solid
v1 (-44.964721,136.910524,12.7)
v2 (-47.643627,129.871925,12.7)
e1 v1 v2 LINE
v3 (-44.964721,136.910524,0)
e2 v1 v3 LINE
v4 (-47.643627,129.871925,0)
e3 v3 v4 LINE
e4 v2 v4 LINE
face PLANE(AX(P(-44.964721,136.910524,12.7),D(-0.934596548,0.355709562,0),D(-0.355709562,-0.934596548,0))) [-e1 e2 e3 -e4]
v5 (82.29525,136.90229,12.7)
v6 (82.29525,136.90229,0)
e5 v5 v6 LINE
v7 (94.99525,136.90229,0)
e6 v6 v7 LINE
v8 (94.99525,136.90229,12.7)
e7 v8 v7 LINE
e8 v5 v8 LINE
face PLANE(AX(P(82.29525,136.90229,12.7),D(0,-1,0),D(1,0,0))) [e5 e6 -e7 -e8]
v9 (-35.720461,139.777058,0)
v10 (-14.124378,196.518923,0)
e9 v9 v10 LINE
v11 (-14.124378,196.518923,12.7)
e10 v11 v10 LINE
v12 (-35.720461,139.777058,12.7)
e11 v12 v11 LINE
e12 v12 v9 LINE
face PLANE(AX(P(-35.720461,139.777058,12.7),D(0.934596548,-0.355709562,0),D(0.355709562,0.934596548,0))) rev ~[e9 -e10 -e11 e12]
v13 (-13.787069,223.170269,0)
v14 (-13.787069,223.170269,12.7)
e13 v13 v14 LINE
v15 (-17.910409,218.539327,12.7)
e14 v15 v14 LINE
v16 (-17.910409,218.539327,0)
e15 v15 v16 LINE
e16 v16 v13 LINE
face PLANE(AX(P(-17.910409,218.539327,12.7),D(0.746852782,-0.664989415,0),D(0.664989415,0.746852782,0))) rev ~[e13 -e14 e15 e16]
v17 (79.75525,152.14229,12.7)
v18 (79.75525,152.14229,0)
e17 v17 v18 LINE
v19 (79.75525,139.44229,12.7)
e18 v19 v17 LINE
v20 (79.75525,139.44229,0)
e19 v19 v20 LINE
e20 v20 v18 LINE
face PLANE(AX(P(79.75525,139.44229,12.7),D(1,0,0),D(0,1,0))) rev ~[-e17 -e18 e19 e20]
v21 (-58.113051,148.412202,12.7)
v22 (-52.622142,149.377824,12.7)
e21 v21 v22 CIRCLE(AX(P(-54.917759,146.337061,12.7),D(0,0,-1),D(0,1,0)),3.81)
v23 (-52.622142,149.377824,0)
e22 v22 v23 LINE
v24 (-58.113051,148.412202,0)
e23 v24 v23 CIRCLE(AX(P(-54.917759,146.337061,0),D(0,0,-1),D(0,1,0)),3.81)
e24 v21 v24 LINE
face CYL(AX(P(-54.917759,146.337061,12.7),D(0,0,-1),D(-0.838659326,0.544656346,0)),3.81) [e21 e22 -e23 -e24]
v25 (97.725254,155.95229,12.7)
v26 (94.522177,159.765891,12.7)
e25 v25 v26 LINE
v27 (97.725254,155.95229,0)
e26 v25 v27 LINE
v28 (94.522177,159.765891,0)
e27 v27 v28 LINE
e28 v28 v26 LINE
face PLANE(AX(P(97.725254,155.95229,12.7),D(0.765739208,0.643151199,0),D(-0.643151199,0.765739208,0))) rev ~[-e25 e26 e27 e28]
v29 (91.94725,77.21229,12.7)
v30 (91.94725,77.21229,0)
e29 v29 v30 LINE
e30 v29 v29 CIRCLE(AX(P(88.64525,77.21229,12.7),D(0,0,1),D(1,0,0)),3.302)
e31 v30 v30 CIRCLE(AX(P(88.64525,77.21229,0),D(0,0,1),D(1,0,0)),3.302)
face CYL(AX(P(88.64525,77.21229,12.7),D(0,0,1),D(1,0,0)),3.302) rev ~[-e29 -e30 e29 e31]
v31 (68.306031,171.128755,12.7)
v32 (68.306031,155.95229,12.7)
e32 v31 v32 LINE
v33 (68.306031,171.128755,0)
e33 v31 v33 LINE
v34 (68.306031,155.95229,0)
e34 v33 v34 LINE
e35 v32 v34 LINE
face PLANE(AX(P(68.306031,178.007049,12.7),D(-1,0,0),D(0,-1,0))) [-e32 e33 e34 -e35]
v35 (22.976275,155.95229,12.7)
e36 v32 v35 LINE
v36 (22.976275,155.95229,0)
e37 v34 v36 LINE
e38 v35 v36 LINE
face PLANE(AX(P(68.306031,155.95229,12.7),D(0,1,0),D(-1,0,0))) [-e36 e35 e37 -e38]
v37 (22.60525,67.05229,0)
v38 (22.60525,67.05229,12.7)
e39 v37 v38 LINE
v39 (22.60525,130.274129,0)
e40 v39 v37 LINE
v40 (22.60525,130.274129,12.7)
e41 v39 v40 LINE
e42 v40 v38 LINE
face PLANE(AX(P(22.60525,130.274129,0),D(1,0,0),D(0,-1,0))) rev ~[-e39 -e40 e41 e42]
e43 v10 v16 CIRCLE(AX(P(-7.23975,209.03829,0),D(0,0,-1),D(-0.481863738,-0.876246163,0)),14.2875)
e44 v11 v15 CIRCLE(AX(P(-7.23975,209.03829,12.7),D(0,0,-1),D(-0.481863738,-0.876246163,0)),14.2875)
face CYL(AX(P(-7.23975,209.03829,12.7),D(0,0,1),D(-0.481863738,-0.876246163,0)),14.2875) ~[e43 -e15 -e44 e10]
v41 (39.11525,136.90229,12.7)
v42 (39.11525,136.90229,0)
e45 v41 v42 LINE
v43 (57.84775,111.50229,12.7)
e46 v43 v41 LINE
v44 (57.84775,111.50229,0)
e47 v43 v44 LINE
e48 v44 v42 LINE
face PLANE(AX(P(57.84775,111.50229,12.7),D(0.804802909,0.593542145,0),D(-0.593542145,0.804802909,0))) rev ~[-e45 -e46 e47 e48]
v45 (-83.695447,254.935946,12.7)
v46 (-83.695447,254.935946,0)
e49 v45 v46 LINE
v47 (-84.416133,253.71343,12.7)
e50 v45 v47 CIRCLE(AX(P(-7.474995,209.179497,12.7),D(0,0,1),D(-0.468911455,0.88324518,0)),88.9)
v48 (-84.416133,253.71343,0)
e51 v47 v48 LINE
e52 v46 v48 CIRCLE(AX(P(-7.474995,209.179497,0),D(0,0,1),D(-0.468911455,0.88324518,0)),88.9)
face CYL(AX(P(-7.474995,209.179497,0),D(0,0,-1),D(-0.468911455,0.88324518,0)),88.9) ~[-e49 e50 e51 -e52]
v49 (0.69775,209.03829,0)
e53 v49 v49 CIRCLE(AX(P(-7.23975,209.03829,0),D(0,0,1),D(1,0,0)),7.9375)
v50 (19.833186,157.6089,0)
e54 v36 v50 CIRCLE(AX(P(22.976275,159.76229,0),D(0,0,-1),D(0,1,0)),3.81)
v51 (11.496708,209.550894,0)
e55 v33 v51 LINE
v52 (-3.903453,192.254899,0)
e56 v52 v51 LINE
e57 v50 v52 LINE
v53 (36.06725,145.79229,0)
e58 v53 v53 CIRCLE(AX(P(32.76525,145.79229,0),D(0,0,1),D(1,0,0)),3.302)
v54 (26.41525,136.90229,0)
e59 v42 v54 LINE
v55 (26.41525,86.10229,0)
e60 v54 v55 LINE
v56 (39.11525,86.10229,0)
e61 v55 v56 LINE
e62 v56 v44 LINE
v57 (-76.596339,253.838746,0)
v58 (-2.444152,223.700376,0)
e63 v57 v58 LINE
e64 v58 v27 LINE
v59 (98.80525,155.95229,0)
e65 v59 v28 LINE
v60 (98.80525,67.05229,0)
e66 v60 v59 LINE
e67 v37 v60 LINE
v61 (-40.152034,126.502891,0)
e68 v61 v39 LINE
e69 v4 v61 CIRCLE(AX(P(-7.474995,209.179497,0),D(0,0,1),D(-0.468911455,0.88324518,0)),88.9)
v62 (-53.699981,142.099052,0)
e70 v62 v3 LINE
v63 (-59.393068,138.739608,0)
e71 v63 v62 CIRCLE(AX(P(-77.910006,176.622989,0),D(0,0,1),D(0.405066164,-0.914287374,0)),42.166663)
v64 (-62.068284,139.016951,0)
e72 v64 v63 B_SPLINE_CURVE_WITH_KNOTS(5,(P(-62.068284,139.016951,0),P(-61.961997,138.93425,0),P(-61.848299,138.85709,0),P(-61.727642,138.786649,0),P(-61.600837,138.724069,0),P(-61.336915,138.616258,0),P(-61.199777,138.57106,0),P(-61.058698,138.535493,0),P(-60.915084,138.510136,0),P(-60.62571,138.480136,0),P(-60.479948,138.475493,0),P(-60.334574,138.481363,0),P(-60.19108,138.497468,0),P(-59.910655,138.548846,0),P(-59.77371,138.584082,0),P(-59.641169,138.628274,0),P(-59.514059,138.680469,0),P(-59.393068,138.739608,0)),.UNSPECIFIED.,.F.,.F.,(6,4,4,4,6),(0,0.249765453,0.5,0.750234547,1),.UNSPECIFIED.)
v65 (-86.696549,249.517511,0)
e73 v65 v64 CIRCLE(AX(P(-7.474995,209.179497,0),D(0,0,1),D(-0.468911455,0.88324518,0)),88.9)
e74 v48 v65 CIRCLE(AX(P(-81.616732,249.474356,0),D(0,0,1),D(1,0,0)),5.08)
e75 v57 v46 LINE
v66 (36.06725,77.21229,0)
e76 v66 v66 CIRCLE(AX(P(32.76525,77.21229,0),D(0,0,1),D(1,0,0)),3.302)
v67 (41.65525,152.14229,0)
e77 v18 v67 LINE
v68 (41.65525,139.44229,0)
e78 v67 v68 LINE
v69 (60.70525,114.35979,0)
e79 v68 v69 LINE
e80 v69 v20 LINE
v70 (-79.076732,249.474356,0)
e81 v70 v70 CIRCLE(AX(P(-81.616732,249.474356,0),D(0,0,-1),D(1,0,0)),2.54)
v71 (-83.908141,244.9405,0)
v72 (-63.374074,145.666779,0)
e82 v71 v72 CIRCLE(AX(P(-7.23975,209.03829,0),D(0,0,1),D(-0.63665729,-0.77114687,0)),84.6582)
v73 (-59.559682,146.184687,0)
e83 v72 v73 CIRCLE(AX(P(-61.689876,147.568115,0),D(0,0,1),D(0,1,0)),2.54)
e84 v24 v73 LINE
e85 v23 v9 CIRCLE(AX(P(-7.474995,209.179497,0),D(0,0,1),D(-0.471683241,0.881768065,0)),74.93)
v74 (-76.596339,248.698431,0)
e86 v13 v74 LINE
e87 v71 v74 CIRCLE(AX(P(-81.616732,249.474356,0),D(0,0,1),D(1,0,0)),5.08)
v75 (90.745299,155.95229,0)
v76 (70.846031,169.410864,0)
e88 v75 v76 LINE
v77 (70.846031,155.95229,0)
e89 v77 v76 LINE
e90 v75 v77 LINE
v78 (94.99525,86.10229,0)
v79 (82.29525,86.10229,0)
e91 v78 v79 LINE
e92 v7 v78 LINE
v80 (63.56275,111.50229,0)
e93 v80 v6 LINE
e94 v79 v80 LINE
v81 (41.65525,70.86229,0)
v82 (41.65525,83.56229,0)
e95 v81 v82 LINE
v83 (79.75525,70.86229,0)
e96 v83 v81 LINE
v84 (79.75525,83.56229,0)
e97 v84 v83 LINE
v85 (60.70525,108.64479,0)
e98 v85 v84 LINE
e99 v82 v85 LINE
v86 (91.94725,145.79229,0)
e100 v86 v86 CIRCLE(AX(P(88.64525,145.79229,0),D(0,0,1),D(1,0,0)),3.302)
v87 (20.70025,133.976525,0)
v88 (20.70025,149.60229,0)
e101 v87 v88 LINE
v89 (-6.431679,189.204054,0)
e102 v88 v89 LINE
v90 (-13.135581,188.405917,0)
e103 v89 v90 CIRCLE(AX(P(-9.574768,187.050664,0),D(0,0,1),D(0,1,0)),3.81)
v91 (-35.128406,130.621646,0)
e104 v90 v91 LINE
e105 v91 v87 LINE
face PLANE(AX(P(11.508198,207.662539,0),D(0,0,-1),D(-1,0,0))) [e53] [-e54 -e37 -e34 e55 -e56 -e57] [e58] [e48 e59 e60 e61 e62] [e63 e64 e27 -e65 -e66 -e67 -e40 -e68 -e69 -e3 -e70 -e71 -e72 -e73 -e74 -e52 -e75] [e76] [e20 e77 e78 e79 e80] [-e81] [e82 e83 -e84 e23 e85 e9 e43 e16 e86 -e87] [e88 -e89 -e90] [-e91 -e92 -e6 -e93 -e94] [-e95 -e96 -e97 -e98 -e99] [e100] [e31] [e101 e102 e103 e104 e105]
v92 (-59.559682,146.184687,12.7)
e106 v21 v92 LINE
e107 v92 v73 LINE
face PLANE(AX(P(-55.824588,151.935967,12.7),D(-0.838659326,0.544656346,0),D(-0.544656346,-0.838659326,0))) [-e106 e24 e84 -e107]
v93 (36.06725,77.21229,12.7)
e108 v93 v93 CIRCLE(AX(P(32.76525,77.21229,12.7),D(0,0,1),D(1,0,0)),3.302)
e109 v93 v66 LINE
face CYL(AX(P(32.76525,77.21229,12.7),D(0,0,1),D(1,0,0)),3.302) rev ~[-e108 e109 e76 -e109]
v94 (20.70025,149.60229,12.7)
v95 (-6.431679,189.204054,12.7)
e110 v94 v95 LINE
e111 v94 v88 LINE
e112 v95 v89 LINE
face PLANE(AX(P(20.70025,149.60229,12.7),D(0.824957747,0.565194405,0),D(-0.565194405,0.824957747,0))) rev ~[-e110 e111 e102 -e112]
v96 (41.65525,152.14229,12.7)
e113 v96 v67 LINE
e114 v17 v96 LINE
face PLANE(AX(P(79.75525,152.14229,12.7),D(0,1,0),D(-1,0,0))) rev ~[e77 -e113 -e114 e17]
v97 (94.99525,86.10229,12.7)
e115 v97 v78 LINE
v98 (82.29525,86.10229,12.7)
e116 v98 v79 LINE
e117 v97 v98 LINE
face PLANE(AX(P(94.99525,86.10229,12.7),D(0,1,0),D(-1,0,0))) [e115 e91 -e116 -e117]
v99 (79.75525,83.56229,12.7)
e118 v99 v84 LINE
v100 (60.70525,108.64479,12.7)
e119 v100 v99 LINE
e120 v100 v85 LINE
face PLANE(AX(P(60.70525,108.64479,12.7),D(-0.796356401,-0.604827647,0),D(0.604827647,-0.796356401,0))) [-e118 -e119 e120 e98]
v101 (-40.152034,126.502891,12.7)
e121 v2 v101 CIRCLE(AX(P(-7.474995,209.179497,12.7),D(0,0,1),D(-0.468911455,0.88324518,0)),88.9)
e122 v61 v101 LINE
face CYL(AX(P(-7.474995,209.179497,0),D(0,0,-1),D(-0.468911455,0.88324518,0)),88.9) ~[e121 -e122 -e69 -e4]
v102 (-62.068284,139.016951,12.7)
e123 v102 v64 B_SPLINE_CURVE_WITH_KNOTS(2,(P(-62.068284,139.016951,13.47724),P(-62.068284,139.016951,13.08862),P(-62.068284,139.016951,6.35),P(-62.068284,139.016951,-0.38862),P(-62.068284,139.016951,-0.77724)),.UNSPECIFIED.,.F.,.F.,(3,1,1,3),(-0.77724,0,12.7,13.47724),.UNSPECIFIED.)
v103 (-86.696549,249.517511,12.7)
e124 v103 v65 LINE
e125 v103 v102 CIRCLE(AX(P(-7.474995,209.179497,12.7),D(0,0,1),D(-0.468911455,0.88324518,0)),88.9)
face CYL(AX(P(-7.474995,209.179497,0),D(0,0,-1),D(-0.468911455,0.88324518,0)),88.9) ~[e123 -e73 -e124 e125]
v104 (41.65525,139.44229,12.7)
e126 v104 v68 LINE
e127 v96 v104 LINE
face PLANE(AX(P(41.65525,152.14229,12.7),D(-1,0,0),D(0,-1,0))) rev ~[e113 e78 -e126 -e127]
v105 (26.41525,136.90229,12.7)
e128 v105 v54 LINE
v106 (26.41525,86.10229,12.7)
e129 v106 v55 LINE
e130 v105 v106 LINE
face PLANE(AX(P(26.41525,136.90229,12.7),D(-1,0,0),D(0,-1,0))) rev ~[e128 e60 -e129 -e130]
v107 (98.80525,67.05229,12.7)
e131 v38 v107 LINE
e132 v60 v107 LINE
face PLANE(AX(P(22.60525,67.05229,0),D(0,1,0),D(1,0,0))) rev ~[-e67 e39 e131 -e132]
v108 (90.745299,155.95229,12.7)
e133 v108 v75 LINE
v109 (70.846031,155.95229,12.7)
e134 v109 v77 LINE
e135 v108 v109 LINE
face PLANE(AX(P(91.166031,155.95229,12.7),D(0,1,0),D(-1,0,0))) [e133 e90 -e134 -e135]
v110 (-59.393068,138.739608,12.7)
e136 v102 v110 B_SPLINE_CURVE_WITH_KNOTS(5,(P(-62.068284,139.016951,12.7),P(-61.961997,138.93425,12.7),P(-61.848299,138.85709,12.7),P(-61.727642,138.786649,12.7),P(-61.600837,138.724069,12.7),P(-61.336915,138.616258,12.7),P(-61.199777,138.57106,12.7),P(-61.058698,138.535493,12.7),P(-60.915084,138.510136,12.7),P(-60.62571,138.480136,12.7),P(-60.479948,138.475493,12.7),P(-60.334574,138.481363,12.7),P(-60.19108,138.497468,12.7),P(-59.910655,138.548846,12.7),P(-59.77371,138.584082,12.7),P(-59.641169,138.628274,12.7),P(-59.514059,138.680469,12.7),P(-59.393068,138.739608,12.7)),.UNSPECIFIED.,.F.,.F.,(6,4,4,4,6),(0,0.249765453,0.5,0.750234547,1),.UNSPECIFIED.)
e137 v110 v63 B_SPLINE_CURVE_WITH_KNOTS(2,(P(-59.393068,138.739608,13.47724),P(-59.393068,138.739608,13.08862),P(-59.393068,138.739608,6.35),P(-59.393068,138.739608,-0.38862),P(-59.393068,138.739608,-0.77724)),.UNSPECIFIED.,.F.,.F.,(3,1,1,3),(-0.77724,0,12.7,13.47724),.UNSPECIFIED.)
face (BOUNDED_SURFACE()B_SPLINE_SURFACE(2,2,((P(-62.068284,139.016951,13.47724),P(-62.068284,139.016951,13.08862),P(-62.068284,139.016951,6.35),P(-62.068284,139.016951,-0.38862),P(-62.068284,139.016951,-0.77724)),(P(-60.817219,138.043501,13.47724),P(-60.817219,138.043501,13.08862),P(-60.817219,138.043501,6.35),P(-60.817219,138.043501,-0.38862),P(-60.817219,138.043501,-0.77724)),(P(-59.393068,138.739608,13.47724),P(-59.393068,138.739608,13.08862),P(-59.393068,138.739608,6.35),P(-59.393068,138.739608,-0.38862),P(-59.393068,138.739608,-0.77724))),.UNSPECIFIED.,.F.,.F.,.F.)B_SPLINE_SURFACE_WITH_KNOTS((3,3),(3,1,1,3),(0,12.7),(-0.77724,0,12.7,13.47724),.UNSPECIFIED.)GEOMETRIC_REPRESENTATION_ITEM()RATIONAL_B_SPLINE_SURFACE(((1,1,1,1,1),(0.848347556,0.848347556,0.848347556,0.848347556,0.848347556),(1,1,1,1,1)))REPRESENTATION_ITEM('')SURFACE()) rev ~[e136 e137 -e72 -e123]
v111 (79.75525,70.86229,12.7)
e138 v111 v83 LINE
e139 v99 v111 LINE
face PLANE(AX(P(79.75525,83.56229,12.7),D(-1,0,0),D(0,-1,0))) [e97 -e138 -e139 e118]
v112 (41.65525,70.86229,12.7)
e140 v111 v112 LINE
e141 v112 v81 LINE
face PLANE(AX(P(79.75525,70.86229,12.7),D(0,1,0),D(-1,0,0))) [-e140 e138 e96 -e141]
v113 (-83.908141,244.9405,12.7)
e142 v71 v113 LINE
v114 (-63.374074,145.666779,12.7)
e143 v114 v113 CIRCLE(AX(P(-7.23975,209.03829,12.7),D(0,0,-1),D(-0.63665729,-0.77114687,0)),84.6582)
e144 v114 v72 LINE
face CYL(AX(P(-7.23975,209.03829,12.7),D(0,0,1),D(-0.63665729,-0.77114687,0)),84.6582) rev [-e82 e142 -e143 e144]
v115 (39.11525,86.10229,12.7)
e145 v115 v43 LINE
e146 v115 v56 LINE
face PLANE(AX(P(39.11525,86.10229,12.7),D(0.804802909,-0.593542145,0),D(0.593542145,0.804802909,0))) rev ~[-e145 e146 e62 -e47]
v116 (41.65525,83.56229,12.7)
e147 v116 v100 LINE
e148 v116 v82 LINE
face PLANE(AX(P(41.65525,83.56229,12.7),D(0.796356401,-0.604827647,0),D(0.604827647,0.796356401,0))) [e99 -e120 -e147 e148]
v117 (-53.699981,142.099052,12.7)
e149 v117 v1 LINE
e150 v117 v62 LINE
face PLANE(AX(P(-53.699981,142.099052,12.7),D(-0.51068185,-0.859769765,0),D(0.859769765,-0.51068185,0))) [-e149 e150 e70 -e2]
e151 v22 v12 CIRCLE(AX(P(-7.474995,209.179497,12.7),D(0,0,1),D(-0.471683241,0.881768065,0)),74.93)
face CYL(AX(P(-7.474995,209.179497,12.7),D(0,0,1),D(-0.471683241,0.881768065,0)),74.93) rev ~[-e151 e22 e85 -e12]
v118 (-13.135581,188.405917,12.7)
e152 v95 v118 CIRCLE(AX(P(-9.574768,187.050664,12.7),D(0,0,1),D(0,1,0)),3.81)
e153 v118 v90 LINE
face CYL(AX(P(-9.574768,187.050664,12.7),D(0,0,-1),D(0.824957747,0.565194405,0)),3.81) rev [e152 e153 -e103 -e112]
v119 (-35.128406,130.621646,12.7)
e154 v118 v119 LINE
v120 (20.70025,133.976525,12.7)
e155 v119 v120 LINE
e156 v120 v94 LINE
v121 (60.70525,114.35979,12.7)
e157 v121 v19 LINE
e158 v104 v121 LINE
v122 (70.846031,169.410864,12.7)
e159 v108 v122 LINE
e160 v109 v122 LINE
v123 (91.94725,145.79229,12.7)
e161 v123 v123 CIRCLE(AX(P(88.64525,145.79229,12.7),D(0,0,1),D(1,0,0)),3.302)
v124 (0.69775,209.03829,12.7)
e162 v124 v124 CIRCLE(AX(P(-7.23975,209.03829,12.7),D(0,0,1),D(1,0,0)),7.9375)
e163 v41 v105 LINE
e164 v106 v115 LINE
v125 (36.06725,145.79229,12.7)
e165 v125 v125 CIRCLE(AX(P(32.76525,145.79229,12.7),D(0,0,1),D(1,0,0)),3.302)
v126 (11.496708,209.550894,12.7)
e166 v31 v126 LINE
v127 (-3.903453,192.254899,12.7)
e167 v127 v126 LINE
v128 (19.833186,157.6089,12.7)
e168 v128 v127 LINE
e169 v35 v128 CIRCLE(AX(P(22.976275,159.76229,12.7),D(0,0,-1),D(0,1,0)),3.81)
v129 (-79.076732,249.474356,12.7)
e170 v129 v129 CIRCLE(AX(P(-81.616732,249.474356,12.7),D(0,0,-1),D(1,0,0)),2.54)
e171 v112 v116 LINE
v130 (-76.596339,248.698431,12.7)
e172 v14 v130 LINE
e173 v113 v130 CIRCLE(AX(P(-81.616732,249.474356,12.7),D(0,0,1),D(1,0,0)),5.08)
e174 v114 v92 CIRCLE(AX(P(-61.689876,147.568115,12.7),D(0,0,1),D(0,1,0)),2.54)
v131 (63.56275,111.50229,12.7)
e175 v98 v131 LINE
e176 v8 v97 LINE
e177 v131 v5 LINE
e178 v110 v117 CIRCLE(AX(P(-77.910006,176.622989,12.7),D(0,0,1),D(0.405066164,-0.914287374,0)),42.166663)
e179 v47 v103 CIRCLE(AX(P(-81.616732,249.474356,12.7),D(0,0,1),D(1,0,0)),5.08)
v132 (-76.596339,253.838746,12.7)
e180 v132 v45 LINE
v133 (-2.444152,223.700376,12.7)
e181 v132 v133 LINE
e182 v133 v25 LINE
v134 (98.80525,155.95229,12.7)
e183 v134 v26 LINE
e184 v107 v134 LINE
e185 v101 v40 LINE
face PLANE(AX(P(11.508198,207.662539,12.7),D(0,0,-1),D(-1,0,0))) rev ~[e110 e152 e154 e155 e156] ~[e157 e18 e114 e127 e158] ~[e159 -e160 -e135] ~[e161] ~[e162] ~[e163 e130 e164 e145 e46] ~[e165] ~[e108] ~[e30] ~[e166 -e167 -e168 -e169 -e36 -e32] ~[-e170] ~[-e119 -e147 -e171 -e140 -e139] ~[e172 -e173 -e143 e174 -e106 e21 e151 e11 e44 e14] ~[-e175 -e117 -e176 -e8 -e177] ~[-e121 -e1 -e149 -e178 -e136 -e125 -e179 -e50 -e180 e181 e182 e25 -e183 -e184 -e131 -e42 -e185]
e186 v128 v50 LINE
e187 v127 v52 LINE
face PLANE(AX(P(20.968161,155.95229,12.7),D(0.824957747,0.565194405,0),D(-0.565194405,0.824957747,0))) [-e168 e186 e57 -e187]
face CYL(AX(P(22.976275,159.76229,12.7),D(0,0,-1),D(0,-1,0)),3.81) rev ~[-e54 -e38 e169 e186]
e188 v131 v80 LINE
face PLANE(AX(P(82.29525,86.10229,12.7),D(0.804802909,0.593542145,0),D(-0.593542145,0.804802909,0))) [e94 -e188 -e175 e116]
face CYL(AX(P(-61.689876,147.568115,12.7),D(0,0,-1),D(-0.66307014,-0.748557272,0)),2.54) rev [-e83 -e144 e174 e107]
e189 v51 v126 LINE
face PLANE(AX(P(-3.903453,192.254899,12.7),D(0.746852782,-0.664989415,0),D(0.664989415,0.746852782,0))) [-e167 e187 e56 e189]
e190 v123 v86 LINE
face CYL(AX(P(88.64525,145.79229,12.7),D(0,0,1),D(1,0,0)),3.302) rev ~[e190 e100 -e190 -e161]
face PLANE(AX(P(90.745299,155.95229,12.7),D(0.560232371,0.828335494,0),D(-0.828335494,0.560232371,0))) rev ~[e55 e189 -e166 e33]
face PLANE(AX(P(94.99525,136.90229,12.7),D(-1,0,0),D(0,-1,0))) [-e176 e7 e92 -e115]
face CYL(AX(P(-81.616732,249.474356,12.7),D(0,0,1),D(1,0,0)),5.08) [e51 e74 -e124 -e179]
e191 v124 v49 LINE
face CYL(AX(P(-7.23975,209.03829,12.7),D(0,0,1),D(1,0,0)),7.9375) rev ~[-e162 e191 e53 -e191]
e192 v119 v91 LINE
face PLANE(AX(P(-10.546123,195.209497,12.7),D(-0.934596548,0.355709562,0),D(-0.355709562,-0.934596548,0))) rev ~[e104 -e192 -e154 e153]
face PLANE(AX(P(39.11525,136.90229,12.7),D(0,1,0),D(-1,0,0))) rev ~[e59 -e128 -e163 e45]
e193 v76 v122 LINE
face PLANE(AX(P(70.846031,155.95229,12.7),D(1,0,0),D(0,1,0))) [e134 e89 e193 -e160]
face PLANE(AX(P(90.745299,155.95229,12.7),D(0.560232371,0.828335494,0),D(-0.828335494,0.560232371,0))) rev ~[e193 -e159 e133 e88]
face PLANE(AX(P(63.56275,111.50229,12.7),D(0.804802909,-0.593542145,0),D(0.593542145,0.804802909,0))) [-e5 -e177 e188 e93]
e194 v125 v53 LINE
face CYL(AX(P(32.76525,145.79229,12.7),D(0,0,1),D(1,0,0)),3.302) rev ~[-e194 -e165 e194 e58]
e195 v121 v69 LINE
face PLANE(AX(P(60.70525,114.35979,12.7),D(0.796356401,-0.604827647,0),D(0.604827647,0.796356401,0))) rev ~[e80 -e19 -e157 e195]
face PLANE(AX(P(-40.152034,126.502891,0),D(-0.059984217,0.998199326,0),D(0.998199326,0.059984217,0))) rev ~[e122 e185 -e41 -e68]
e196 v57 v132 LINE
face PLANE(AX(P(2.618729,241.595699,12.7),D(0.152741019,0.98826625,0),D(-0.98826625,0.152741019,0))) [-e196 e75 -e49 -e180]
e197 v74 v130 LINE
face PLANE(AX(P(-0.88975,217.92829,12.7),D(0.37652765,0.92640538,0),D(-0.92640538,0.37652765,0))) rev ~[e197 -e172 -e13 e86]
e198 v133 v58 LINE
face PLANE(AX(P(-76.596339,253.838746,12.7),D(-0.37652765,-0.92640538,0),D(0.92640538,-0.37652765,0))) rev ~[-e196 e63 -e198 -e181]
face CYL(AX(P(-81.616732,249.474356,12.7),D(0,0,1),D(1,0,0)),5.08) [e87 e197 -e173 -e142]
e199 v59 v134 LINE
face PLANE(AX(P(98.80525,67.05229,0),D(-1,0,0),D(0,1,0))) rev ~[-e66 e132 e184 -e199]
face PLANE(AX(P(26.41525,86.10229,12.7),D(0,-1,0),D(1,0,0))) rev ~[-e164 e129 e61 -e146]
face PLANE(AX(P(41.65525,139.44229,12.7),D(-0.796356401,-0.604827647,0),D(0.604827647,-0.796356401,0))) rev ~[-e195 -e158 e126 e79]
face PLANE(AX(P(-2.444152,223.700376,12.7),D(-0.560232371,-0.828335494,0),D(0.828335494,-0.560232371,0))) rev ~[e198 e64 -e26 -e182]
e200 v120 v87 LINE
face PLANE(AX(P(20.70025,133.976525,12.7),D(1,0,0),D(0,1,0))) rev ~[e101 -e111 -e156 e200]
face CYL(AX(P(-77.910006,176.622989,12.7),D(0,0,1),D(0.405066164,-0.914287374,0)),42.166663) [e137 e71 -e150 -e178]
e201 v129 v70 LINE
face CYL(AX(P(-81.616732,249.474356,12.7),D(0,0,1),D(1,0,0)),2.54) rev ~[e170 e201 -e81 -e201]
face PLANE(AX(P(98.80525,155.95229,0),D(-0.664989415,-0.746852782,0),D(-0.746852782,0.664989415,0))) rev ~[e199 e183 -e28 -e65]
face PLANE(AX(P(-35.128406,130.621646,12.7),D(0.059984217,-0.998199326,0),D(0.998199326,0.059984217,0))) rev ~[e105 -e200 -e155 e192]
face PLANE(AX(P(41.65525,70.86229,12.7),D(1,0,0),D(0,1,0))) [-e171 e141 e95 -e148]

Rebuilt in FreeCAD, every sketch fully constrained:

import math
import FreeCAD as App
import Part
import Sketcher
Q = App.Units.Quantity


def edges_at(feature, points):
    """Names of the edges that pass closest to the given points."""
    edges = feature.Shape.Edges
    near = lambda p: min(range(len(edges)), key=lambda i: edges[i].distToShape(Part.Vertex(*p))[0])
    return sorted({f"Edge{near(p) + 1}" for p in points})

doc = App.newDocument("Part")
body = doc.addObject("PartDesign::Body", "Body")

# Sketch on XY plane
sketch1 = body.newObject("Sketcher::SketchObject", "Sketch")
sketch1.AttachmentSupport = (doc.getObject("XY_Plane"), [""])
sketch1.MapMode = "FlatFace"
sketch1.addGeometry([
    Part.LineSegment(App.Vector(23, 67, 0), App.Vector(99, 67, 0)),  # 0
    Part.LineSegment(App.Vector(99, 67, 0), App.Vector(99, 156, 0)),  # 1
    Part.LineSegment(App.Vector(99, 156, 0), App.Vector(-49, 288, 0)),  # 2
    Part.ArcOfCircle(Part.Circle(App.Vector(-7, 209, 0), App.Vector(0, 0, 1), 89), math.radians(118), math.radians(248)),  # 3
    Part.LineSegment(App.Vector(-40, 127, 0), App.Vector(23, 130, 0)),  # 4
    Part.LineSegment(App.Vector(23, 130, 0), App.Vector(23, 67, 0)),  # 5
], False)
sketch1.addConstraint([
    Sketcher.Constraint("Coincident", 0, 2, 1, 1),
    Sketcher.Constraint("Coincident", 1, 2, 2, 1),
    Sketcher.Constraint("Coincident", 2, 2, 3, 1),
    Sketcher.Constraint("Coincident", 3, 2, 4, 1),
    Sketcher.Constraint("Coincident", 4, 2, 5, 1),
    Sketcher.Constraint("Coincident", 5, 2, 0, 1),
    Sketcher.Constraint("Horizontal", 0),
    Sketcher.Constraint("Vertical", 1),
    Sketcher.Constraint("Vertical", 5),
    Sketcher.Constraint("Radius", 3, Q("3.5 in")),
    Sketcher.Constraint("DistanceX", 0, 1, 0, 2, Q("3 in")),
    Sketcher.Constraint("DistanceY", 1, 1, 1, 2, Q("3.5 in")),
    Sketcher.Constraint("Distance", 2, Q("7.8 in")),
    Sketcher.Constraint("DistanceY", 5, 2, 5, 1, Q("63.221838 mm")),
    Sketcher.Constraint("DistanceY", 3, 2, 1, 2, Q("29.449399 mm")),
    Sketcher.Constraint("DistanceX", -1, 1, 0, 2, Q("98.80525 mm")),
    Sketcher.Constraint("DistanceY", -1, 1, 0, 2, Q("67.05229 mm")),
    Sketcher.Constraint("DistanceX", 2, 2, 3, 3, Q("41.686228 mm")),
    Sketcher.Constraint("DistanceX", 3, 2, 3, 3, Q("32.677039 mm")),
])
pad1 = body.newObject("PartDesign::Pad", "Pad")
pad1.Profile = sketch1
pad1.Length = Q("0.5 in")

# Sketch on XY plane
sketch2 = body.newObject("Sketcher::SketchObject", "Sketch001")
sketch2.AttachmentSupport = (doc.getObject("XY_Plane"), [""])
sketch2.MapMode = "FlatFace"
sketch2.AttachmentOffset = App.Placement(App.Vector(0, 0, 0.5 * 25.4), App.Rotation())
sketch2.addGeometry(Part.Circle(App.Vector(-7, 209, 0), App.Vector(0, 0, 1), 8), False)
sketch2.addConstraint([
    Sketcher.Constraint("Diameter", 0, Q("0.625 in")),
    Sketcher.Constraint("DistanceX", 0, 3, -1, 1, Q("7.23975 mm")),
    Sketcher.Constraint("DistanceY", -1, 1, 0, 3, Q("209.03829 mm")),
])
pocket1 = body.newObject("PartDesign::Pocket", "Pocket")
pocket1.Profile = sketch2
pocket1.Length = Q("1 in")

# Sketch on XY plane
sketch3 = body.newObject("Sketcher::SketchObject", "Sketch002")
sketch3.AttachmentSupport = (doc.getObject("XY_Plane"), [""])
sketch3.MapMode = "FlatFace"
sketch3.AttachmentOffset = App.Placement(App.Vector(0, 0, 0.5 * 25.4), App.Rotation())
sketch3.addGeometry([
    Part.LineSegment(App.Vector(42, 84, 0), App.Vector(42, 71, 0)),  # 0
    Part.LineSegment(App.Vector(42, 71, 0), App.Vector(80, 71, 0)),  # 1
    Part.LineSegment(App.Vector(80, 71, 0), App.Vector(80, 84, 0)),  # 2
    Part.LineSegment(App.Vector(80, 84, 0), App.Vector(61, 109, 0)),  # 3
    Part.LineSegment(App.Vector(61, 109, 0), App.Vector(42, 84, 0)),  # 4
    Part.LineSegment(App.Vector(26, 86, 0), App.Vector(39, 86, 0)),  # 5
    Part.LineSegment(App.Vector(39, 86, 0), App.Vector(58, 112, 0)),  # 6
    Part.LineSegment(App.Vector(58, 112, 0), App.Vector(39, 137, 0)),  # 7
    Part.LineSegment(App.Vector(39, 137, 0), App.Vector(26, 137, 0)),  # 8
    Part.LineSegment(App.Vector(26, 137, 0), App.Vector(26, 86, 0)),  # 9
    Part.LineSegment(App.Vector(82, 86, 0), App.Vector(95, 86, 0)),  # 10
    Part.LineSegment(App.Vector(95, 86, 0), App.Vector(95, 137, 0)),  # 11
    Part.LineSegment(App.Vector(95, 137, 0), App.Vector(82, 137, 0)),  # 12
    Part.LineSegment(App.Vector(82, 137, 0), App.Vector(64, 112, 0)),  # 13
    Part.LineSegment(App.Vector(64, 112, 0), App.Vector(82, 86, 0)),  # 14
    Part.LineSegment(App.Vector(42, 152, 0), App.Vector(42, 139, 0)),  # 15
    Part.LineSegment(App.Vector(42, 139, 0), App.Vector(61, 114, 0)),  # 16
    Part.LineSegment(App.Vector(61, 114, 0), App.Vector(80, 139, 0)),  # 17
    Part.LineSegment(App.Vector(80, 139, 0), App.Vector(80, 152, 0)),  # 18
    Part.LineSegment(App.Vector(80, 152, 0), App.Vector(42, 152, 0)),  # 19
], False)
sketch3.addConstraint([
    Sketcher.Constraint("Coincident", 0, 2, 1, 1),
    Sketcher.Constraint("Coincident", 1, 2, 2, 1),
    Sketcher.Constraint("Coincident", 2, 2, 3, 1),
    Sketcher.Constraint("Coincident", 3, 2, 4, 1),
    Sketcher.Constraint("Coincident", 4, 2, 0, 1),
    Sketcher.Constraint("Coincident", 5, 2, 6, 1),
    Sketcher.Constraint("Coincident", 6, 2, 7, 1),
    Sketcher.Constraint("Coincident", 7, 2, 8, 1),
    Sketcher.Constraint("Coincident", 8, 2, 9, 1),
    Sketcher.Constraint("Coincident", 9, 2, 5, 1),
    Sketcher.Constraint("Coincident", 10, 2, 11, 1),
    Sketcher.Constraint("Coincident", 11, 2, 12, 1),
    Sketcher.Constraint("Coincident", 12, 2, 13, 1),
    Sketcher.Constraint("Coincident", 13, 2, 14, 1),
    Sketcher.Constraint("Coincident", 14, 2, 10, 1),
    Sketcher.Constraint("Coincident", 15, 2, 16, 1),
    Sketcher.Constraint("Coincident", 16, 2, 17, 1),
    Sketcher.Constraint("Coincident", 17, 2, 18, 1),
    Sketcher.Constraint("Coincident", 18, 2, 19, 1),
    Sketcher.Constraint("Coincident", 19, 2, 15, 1),
    Sketcher.Constraint("Vertical", 0),
    Sketcher.Constraint("Horizontal", 1),
    Sketcher.Constraint("Vertical", 2),
    Sketcher.Constraint("Horizontal", 5),
    Sketcher.Constraint("Horizontal", 8),
    Sketcher.Constraint("Vertical", 9),
    Sketcher.Constraint("Horizontal", 10),
    Sketcher.Constraint("Vertical", 11),
    Sketcher.Constraint("Horizontal", 12),
    Sketcher.Constraint("Vertical", 15),
    Sketcher.Constraint("Vertical", 18),
    Sketcher.Constraint("Horizontal", 19),
    Sketcher.Constraint("Parallel", 6, 13),
    Sketcher.Constraint("Parallel", 7, 14),
    Sketcher.Constraint("Parallel", 3, 16),
    Sketcher.Constraint("Parallel", 4, 17),
    Sketcher.Constraint("Horizontal", 2, 2, 4, 2),
    Sketcher.Constraint("Horizontal", 9, 2, 10, 2),
    Sketcher.Constraint("Horizontal", 8, 2, 11, 2),
    Sketcher.Constraint("Horizontal", 6, 2, 13, 2),
    Sketcher.Constraint("Horizontal", 15, 2, 17, 2),
    Sketcher.Constraint("Vertical", 5, 2, 7, 2),
    Sketcher.Constraint("Vertical", 12, 2, 14, 2),
    Sketcher.Constraint("Vertical", 4, 2, 15, 2),
    Sketcher.Constraint("Vertical", 3, 2, 16, 2),
    Sketcher.Constraint("Vertical", 2, 2, 17, 2),
    Sketcher.Constraint("Equal", 8, 10),
    Sketcher.Constraint("Equal", 12, 0),
    Sketcher.Constraint("Equal", 2, 15),
    Sketcher.Constraint("DistanceY", 9, 2, 9, 1, Q("2 in")),
    Sketcher.Constraint("DistanceX", 1, 1, 1, 2, Q("1.5 in")),
    Sketcher.Constraint("DistanceX", 5, 1, 5, 2, Q("0.5 in")),
    Sketcher.Constraint("DistanceX", 5, 2, 4, 2, Q("0.1 in")),
    Sketcher.Constraint("DistanceY", 4, 2, 5, 2, Q("0.1 in")),
    Sketcher.Constraint("DistanceX", 2, 2, 10, 2, Q("0.6 in")),
    Sketcher.Constraint("DistanceY", 7, 2, 15, 2, Q("0.1 in")),
    Sketcher.Constraint("DistanceX", 6, 2, 13, 2, Q("0.225 in")),
    Sketcher.Constraint("DistanceY", 3, 2, 16, 2, Q("0.225 in")),
    Sketcher.Constraint("DistanceX", -1, 1, 0, 2, Q("41.65525 mm")),
    Sketcher.Constraint("DistanceY", -1, 1, 0, 2, Q("70.86229 mm")),
])
pocket2 = body.newObject("PartDesign::Pocket", "Pocket001")
pocket2.Profile = sketch3
pocket2.Length = Q("0.6 in")

# Sketch on XY plane
sketch4 = body.newObject("Sketcher::SketchObject", "Sketch003")
sketch4.AttachmentSupport = (doc.getObject("XY_Plane"), [""])
sketch4.MapMode = "FlatFace"
sketch4.AttachmentOffset = App.Placement(App.Vector(0, 0, 0.5 * 25.4), App.Rotation())
sketch4.addGeometry([
    Part.LineSegment(App.Vector(-1, 238, 0), App.Vector(-43, 275, 0)),  # 0
    Part.ArcOfCircle(Part.Circle(App.Vector(-7, 209, 0), App.Vector(0, 0, 1), 75), math.radians(118), math.radians(248)),  # 1
    Part.LineSegment(App.Vector(-36, 140, 0), App.Vector(-14, 197, 0)),  # 2
    Part.ArcOfCircle(Part.Circle(App.Vector(-7, 209, 0), App.Vector(0, 0, 1), 14), math.radians(138), math.radians(241)),  # 3
    Part.LineSegment(App.Vector(-18, 219, 0), App.Vector(-1, 238, 0)),  # 4
    Part.LineSegment(App.Vector(4, 234, 0), App.Vector(-5, 223, 0)),  # 5
    Part.ArcOfCircle(Part.Circle(App.Vector(-7, 209, 0), App.Vector(0, 0, 1), 14), math.radians(18), math.radians(82)),  # 6
    Part.LineSegment(App.Vector(6, 213, 0), App.Vector(15, 223, 0)),  # 7
    Part.LineSegment(App.Vector(15, 223, 0), App.Vector(4, 234, 0)),  # 8
    Part.LineSegment(App.Vector(21, 150, 0), App.Vector(-11, 195, 0)),  # 9
    Part.LineSegment(App.Vector(-11, 195, 0), App.Vector(-35, 131, 0)),  # 10
    Part.LineSegment(App.Vector(-35, 131, 0), App.Vector(21, 134, 0)),  # 11
    Part.LineSegment(App.Vector(21, 134, 0), App.Vector(21, 150, 0)),  # 12
], False)
sketch4.addConstraint([
    Sketcher.Constraint("Coincident", 0, 2, 1, 1),
    Sketcher.Constraint("Coincident", 1, 2, 2, 1),
    Sketcher.Constraint("Coincident", 2, 2, 3, 2),
    Sketcher.Constraint("Tangent", 3, 1, 4, 1),
    Sketcher.Constraint("Coincident", 4, 2, 0, 1),
    Sketcher.Constraint("Coincident", 5, 2, 6, 2),
    Sketcher.Constraint("Coincident", 6, 1, 7, 1),
    Sketcher.Constraint("Coincident", 7, 2, 8, 1),
    Sketcher.Constraint("Coincident", 8, 2, 5, 1),
    Sketcher.Constraint("Coincident", 9, 2, 10, 1),
    Sketcher.Constraint("Coincident", 10, 2, 11, 1),
    Sketcher.Constraint("Coincident", 11, 2, 12, 1),
    Sketcher.Constraint("Coincident", 12, 2, 9, 1),
    Sketcher.Constraint("Vertical", 12),
    Sketcher.Constraint("Coincident", 6, 3, 3, 3),
    Sketcher.Constraint("Equal", 3, 6),
    Sketcher.Constraint("Perpendicular", 0, 4),
    Sketcher.Constraint("Parallel", 4, 5),
    Sketcher.Constraint("Parallel", 5, 7),
    Sketcher.Constraint("Perpendicular", 7, 8),
    Sketcher.Constraint("Parallel", 2, 10),
    Sketcher.Constraint("Radius", 1, Q("2.95 in")),
    Sketcher.Constraint("Radius", 3, Q("0.5625 in")),
    Sketcher.Constraint("Distance", 8, Q("0.6 in")),
    Sketcher.Constraint("DistanceX", 3, 3, 11, 2, Q("1.1 in")),
    Sketcher.Constraint("DistanceY", 9, 2, 1, 3, Q("0.55 in")),
    Sketcher.Constraint("DistanceX", 5, 2, 6, 1, Q("11.6484 mm")),
    Sketcher.Constraint("Distance", 7, Q("13.51106 mm")),
    Sketcher.Constraint("DistanceY", 12, 1, 12, 2, Q("15.625765 mm")),
    Sketcher.Constraint("DistanceX", 3, 3, -1, 1, Q("7.23975 mm")),
    Sketcher.Constraint("DistanceY", -1, 1, 3, 3, Q("209.03829 mm")),
    Sketcher.Constraint("DistanceX", 0, 2, -1, 1, Q("42.81822 mm")),
    Sketcher.Constraint("DistanceX", 1, 2, -1, 1, Q("35.720461 mm")),
    Sketcher.Constraint("DistanceX", 2, 2, -1, 1, Q("14.124378 mm")),
    Sketcher.Constraint("DistanceX", 3, 1, -1, 1, Q("17.910409 mm")),
    Sketcher.Constraint("DistanceY", -1, 1, 12, 2, Q("149.60229 mm")),
    Sketcher.Constraint("DistanceY", 1, 3, 0, 2, Q("66.070881 mm")),
    Sketcher.Constraint("DistanceY", 1, 3, 3, 1, Q("9.35983 mm")),
    Sketcher.Constraint("DistanceX", 9, 2, 1, 3, Q("3.071129 mm")),
    Sketcher.Constraint("DistanceY", 10, 2, 1, 2, Q("9.155411 mm")),
])
pocket3 = body.newObject("PartDesign::Pocket", "Pocket002")
pocket3.Profile = sketch4
pocket3.Length = Q("0.5 in")

# Sketch on XY plane
sketch5 = body.newObject("Sketcher::SketchObject", "Sketch004")
sketch5.AttachmentSupport = (doc.getObject("XY_Plane"), [""])
sketch5.MapMode = "FlatFace"
sketch5.AttachmentOffset = App.Placement(App.Vector(0, 0, 0.5 * 25.4), App.Rotation())
sketch5.addGeometry([
    Part.LineSegment(App.Vector(-4, 192, 0), App.Vector(21, 156, 0)),  # 0
    Part.LineSegment(App.Vector(21, 156, 0), App.Vector(68, 156, 0)),  # 1
    Part.LineSegment(App.Vector(68, 156, 0), App.Vector(68, 178, 0)),  # 2
    Part.LineSegment(App.Vector(68, 178, 0), App.Vector(21, 220, 0)),  # 3
    Part.LineSegment(App.Vector(21, 220, 0), App.Vector(-4, 192, 0)),  # 4
    Part.LineSegment(App.Vector(71, 156, 0), App.Vector(91, 156, 0)),  # 5
    Part.LineSegment(App.Vector(91, 156, 0), App.Vector(71, 174, 0)),  # 6
    Part.LineSegment(App.Vector(71, 174, 0), App.Vector(71, 156, 0)),  # 7
], False)
sketch5.addConstraint([
    Sketcher.Constraint("Coincident", 0, 2, 1, 1),
    Sketcher.Constraint("Coincident", 1, 2, 2, 1),
    Sketcher.Constraint("Coincident", 2, 2, 3, 1),
    Sketcher.Constraint("Coincident", 3, 2, 4, 1),
    Sketcher.Constraint("Coincident", 4, 2, 0, 1),
    Sketcher.Constraint("Coincident", 5, 2, 6, 1),
    Sketcher.Constraint("Coincident", 6, 2, 7, 1),
    Sketcher.Constraint("Coincident", 7, 2, 5, 1),
    Sketcher.Constraint("Horizontal", 1),
    Sketcher.Constraint("Vertical", 2),
    Sketcher.Constraint("Horizontal", 5),
    Sketcher.Constraint("Vertical", 7),
    Sketcher.Constraint("Perpendicular", 3, 4),
    Sketcher.Constraint("Perpendicular", 4, 6),
    Sketcher.Constraint("Horizontal", 1, 2, 5, 2),
    Sketcher.Constraint("DistanceX", 5, 1, 5, 2, Q("0.8 in")),
    Sketcher.Constraint("DistanceX", 1, 2, 5, 2, Q("0.9 in")),
    Sketcher.Constraint("DistanceX", 1, 1, 1, 2, Q("47.337869 mm")),
    Sketcher.Constraint("DistanceY", 2, 1, 2, 2, Q("22.054759 mm")),
    Sketcher.Constraint("DistanceY", -1, 1, 4, 2, Q("192.254899 mm")),
    Sketcher.Constraint("DistanceY", 7, 2, 7, 1, Q("18.092702 mm")),
    Sketcher.Constraint("DistanceX", -1, 1, 0, 2, Q("20.968161 mm")),
    Sketcher.Constraint("DistanceY", -1, 1, 0, 2, Q("155.95229 mm")),
    Sketcher.Constraint("DistanceX", 4, 2, 3, 2, Q("24.855639 mm")),
])
pocket4 = body.newObject("PartDesign::Pocket", "Pocket003")
pocket4.Profile = sketch5
pocket4.Length = Q("0.5 in")
doc.recompute()

fillet = body.newObject("PartDesign::Fillet", "Fillet")
fillet.Base = (pocket4, edges_at(pocket4, [(-10.546, 195.209, 6.35), (20.968, 155.952, 6.35)]))
fillet.Radius = Q("0.15 in")

# Sketch on XY plane
sketch6 = body.newObject("Sketcher::SketchObject", "Sketch005")
sketch6.AttachmentSupport = (doc.getObject("XY_Plane"), [""])
sketch6.MapMode = "FlatFace"
sketch6.AttachmentOffset = App.Placement(App.Vector(0, 0, 0.5 * 25.4), App.Rotation())
sketch6.addGeometry(Part.Circle(App.Vector(32.8, 77.2, 0), App.Vector(0, 0, 1), 3.3), False)
sketch6.addConstraint([
    Sketcher.Constraint("Diameter", 0, Q("0.26 in")),
    Sketcher.Constraint("DistanceX", -1, 1, 0, 3, Q("32.76525 mm")),
    Sketcher.Constraint("DistanceY", -1, 1, 0, 3, Q("77.21229 mm")),
])
pocket5 = body.newObject("PartDesign::Pocket", "Pocket004")
pocket5.Profile = sketch6
pocket5.Type = "UpToFirst"

# Sketch on XY plane
sketch7 = body.newObject("Sketcher::SketchObject", "Sketch006")
sketch7.AttachmentSupport = (doc.getObject("XY_Plane"), [""])
sketch7.MapMode = "FlatFace"
sketch7.AttachmentOffset = App.Placement(App.Vector(0, 0, 0.5 * 25.4), App.Rotation())
sketch7.addGeometry(Part.Circle(App.Vector(32.8, 145.8, 0), App.Vector(0, 0, 1), 3.3), False)
sketch7.addConstraint([
    Sketcher.Constraint("Diameter", 0, Q("0.26 in")),
    Sketcher.Constraint("DistanceX", -1, 1, 0, 3, Q("32.76525 mm")),
    Sketcher.Constraint("DistanceY", -1, 1, 0, 3, Q("145.79229 mm")),
])
pocket6 = body.newObject("PartDesign::Pocket", "Pocket005")
pocket6.Profile = sketch7
pocket6.Type = "UpToFirst"

# Sketch on XY plane
sketch8 = body.newObject("Sketcher::SketchObject", "Sketch007")
sketch8.AttachmentSupport = (doc.getObject("XY_Plane"), [""])
sketch8.MapMode = "FlatFace"
sketch8.AttachmentOffset = App.Placement(App.Vector(0, 0, 0.5 * 25.4), App.Rotation())
sketch8.addGeometry(Part.Circle(App.Vector(88.6, 145.8, 0), App.Vector(0, 0, 1), 3.3), False)
sketch8.addConstraint([
    Sketcher.Constraint("Diameter", 0, Q("0.26 in")),
    Sketcher.Constraint("DistanceX", -1, 1, 0, 3, Q("88.64525 mm")),
    Sketcher.Constraint("DistanceY", -1, 1, 0, 3, Q("145.79229 mm")),
])
pocket7 = body.newObject("PartDesign::Pocket", "Pocket006")
pocket7.Profile = sketch8
pocket7.Type = "UpToFirst"

# Sketch on XY plane
sketch9 = body.newObject("Sketcher::SketchObject", "Sketch008")
sketch9.AttachmentSupport = (doc.getObject("XY_Plane"), [""])
sketch9.MapMode = "FlatFace"
sketch9.AttachmentOffset = App.Placement(App.Vector(0, 0, 0.5 * 25.4), App.Rotation())
sketch9.addGeometry(Part.Circle(App.Vector(88.6, 77.2, 0), App.Vector(0, 0, 1), 3.3), False)
sketch9.addConstraint([
    Sketcher.Constraint("Diameter", 0, Q("0.26 in")),
    Sketcher.Constraint("DistanceX", -1, 1, 0, 3, Q("88.64525 mm")),
    Sketcher.Constraint("DistanceY", -1, 1, 0, 3, Q("77.21229 mm")),
])
pocket8 = body.newObject("PartDesign::Pocket", "Pocket007")
pocket8.Profile = sketch9
pocket8.Type = "UpToFirst"

# Sketch on XY plane
sketch10 = body.newObject("Sketcher::SketchObject", "Sketch009")
sketch10.AttachmentSupport = (doc.getObject("XY_Plane"), [""])
sketch10.MapMode = "FlatFace"
sketch10.AttachmentOffset = App.Placement(App.Vector(0, 0, 0.5 * 25.4), App.Rotation())
sketch10.addGeometry([
    Part.LineSegment(App.Vector(-45, 137, 0), App.Vector(-54, 142, 0)),  # 0
    Part.ArcOfCircle(Part.Circle(App.Vector(-78, 177, 0), App.Vector(0, 0, 1), 42), math.radians(-66.1), math.radians(-54.96)),  # 1
    Part.ArcOfCircle(Part.Circle(App.Vector(-45, 100, 0), App.Vector(0, 0, 1), 42), math.radians(112.37), math.radians(121.72)),  # 2
    Part.LineSegment(App.Vector(-67, 135, 0), App.Vector(-50, 124, 0)),  # 3
    Part.LineSegment(App.Vector(-50, 124, 0), App.Vector(-45, 137, 0)),  # 4
], False)
sketch10.addConstraint([
    Sketcher.Constraint("Coincident", 0, 2, 1, 2),
    Sketcher.Constraint("Coincident", 1, 1, 2, 1),
    Sketcher.Constraint("Coincident", 2, 2, 3, 1),
    Sketcher.Constraint("Coincident", 3, 2, 4, 1),
    Sketcher.Constraint("Coincident", 4, 2, 0, 1),
    Sketcher.Constraint("Distance", 0, Q("0.4 in")),
    Sketcher.Constraint("Distance", 3, Q("0.8 in")),
    Sketcher.Constraint("Radius", 2, Q("41.614721 mm")),
    Sketcher.Constraint("Radius", 1, Q("42.166663 mm")),
    Sketcher.Constraint("DistanceX", 3, 2, 4, 2, Q("5.055801 mm")),
    Sketcher.Constraint("DistanceY", -1, 1, 1, 3, Q("176.622989 mm")),
    Sketcher.Constraint("DistanceY", -1, 1, 2, 3, Q("99.588579 mm")),
    Sketcher.Constraint("DistanceX", 0, 2, -1, 1, Q("53.699981 mm")),
    Sketcher.Constraint("DistanceY", -1, 1, 0, 2, Q("142.099052 mm")),
    Sketcher.Constraint("DistanceY", -1, 1, 1, 1, Q("138.070541 mm")),
    Sketcher.Constraint("DistanceX", 2, 2, -1, 1, Q("66.86773 mm")),
    Sketcher.Constraint("DistanceX", 3, 2, -1, 1, Q("50.020522 mm")),
])
pocket9 = body.newObject("PartDesign::Pocket", "Pocket008")
pocket9.Profile = sketch10
pocket9.Length = Q("0.5 in")

# Sketch on XY plane
sketch11 = body.newObject("Sketcher::SketchObject", "Sketch010")
sketch11.AttachmentSupport = (doc.getObject("XY_Plane"), [""])
sketch11.MapMode = "FlatFace"
sketch11.AttachmentOffset = App.Placement(App.Vector(0, 0, 0.5 * 25.4), App.Rotation())
sketch11.addGeometry([
    Part.LineSegment(App.Vector(-43, 275, 0), App.Vector(-50, 282, 0)),
    Part.ArcOfCircle(Part.Circle(App.Vector(-7, 209, 0), App.Vector(0, 0, 1), 85), math.radians(121), math.radians(230)),
    Part.LineSegment(App.Vector(-61, 144, 0), App.Vector(-56, 152, 0)),
    Part.LineSegment(App.Vector(-56, 152, 0), App.Vector(-43, 275, 0)),
], False)
sketch11.addConstraint([
    Sketcher.Constraint("Coincident", 0, 2, 1, 1),
    Sketcher.Constraint("Coincident", 1, 2, 2, 1),
    Sketcher.Constraint("Coincident", 2, 2, 3, 1),
    Sketcher.Constraint("Coincident", 3, 2, 0, 1),
    Sketcher.Constraint("Radius", 1, Q("3.333 in")),
    Sketcher.Constraint("DistanceY", -1, 1, 0, 2, Q("281.921299 mm")),
    Sketcher.Constraint("Distance", 0, Q("10.031621 mm")),
    Sketcher.Constraint("Distance", 2, Q("9.755549 mm")),
    Sketcher.Constraint("DistanceX", 1, 3, -1, 1, Q("7.23975 mm")),
    Sketcher.Constraint("DistanceY", -1, 1, 1, 3, Q("209.03829 mm")),
    Sketcher.Constraint("DistanceX", 1, 2, -1, 1, Q("61.13801 mm")),
    Sketcher.Constraint("DistanceX", 2, 2, -1, 1, Q("55.824588 mm")),
    Sketcher.Constraint("DistanceX", 3, 2, -1, 1, Q("42.81822 mm")),
])
pocket10 = body.newObject("PartDesign::Pocket", "Pocket009")
pocket10.Profile = sketch11
pocket10.Length = Q("0.6 in")
doc.recompute()

fillet2 = body.newObject("PartDesign::Fillet", "Fillet001")
fillet2.Base = (pocket10, edges_at(pocket10, [(-60.83, 138.071, 6.35), (-61.138, 143.754, 6.35)]))
fillet2.Radius = Q("0.1 in")
doc.recompute()

fillet3 = body.newObject("PartDesign::Fillet", "Fillet002")
fillet3.Base = (fillet2, edges_at(fillet2, [(-55.825, 151.936, 6.35)]))
fillet3.Radius = Q("0.15 in")

# Sketch on XY plane
sketch12 = body.newObject("Sketcher::SketchObject", "Sketch011")
sketch12.AttachmentSupport = (doc.getObject("XY_Plane"), [""])
sketch12.MapMode = "FlatFace"
sketch12.AttachmentOffset = App.Placement(App.Vector(0, 0, 0.5 * 25.4), App.Rotation())
sketch12.addGeometry([
    Part.LineSegment(App.Vector(-90, 256, 0), App.Vector(-1, 238, 0)),
    Part.LineSegment(App.Vector(-1, 238, 0), App.Vector(3, 242, 0)),
    Part.LineSegment(App.Vector(3, 242, 0), App.Vector(-57, 294, 0)),
    Part.LineSegment(App.Vector(-57, 294, 0), App.Vector(-90, 256, 0)),
], False)
sketch12.addConstraint([
    Sketcher.Constraint("Coincident", 0, 2, 1, 1),
    Sketcher.Constraint("Coincident", 1, 2, 2, 1),
    Sketcher.Constraint("Coincident", 2, 2, 3, 1),
    Sketcher.Constraint("Coincident", 3, 2, 0, 1),
    Sketcher.Constraint("Perpendicular", 1, 2),
    Sketcher.Constraint("Perpendicular", 2, 3),
    Sketcher.Constraint("Distance", 3, Q("2 in")),
    Sketcher.Constraint("Distance", 1, Q("0.2 in")),
    Sketcher.Constraint("DistanceY", -1, 1, 1, 2, Q("241.595699 mm")),
    Sketcher.Constraint("DistanceY", -1, 1, 3, 2, Q("256.297302 mm")),
    Sketcher.Constraint("DistanceX", -1, 1, 1, 2, Q("2.618729 mm")),
    Sketcher.Constraint("DistanceX", 2, 2, -1, 1, Q("56.503442 mm")),
])
pocket11 = body.newObject("PartDesign::Pocket", "Pocket010")
pocket11.Profile = sketch12
pocket11.Length = Q("0.5 in")

# Sketch on XY plane
sketch13 = body.newObject("Sketcher::SketchObject", "Sketch012")
sketch13.AttachmentSupport = (doc.getObject("XY_Plane"), [""])
sketch13.MapMode = "FlatFace"
sketch13.AttachmentOffset = App.Placement(App.Vector(0, 0, 0.5 * 25.4), App.Rotation())
sketch13.addGeometry([
    Part.LineSegment(App.Vector(3, 242, 0), App.Vector(-84, 255, 0)),
    Part.LineSegment(App.Vector(-84, 255, 0), App.Vector(-84, 250, 0)),
    Part.LineSegment(App.Vector(-84, 250, 0), App.Vector(-1, 237, 0)),
    Part.LineSegment(App.Vector(-1, 237, 0), App.Vector(3, 242, 0)),
], False)
sketch13.addConstraint([
    Sketcher.Constraint("Coincident", 0, 2, 1, 1),
    Sketcher.Constraint("Coincident", 1, 2, 2, 1),
    Sketcher.Constraint("Coincident", 2, 2, 3, 1),
    Sketcher.Constraint("Coincident", 3, 2, 0, 1),
    Sketcher.Constraint("Perpendicular", 0, 1),
    Sketcher.Constraint("Perpendicular", 1, 2),
    Sketcher.Constraint("Distance", 1, Q("0.2 in")),
    Sketcher.Constraint("DistanceX", 2, 2, -1, 1, Q("1.404499 mm")),
    Sketcher.Constraint("DistanceY", -1, 1, 3, 2, Q("241.595699 mm")),
    Sketcher.Constraint("DistanceX", 1, 2, 3, 2, Q("87.090101 mm")),
    Sketcher.Constraint("Distance", 0, Q("87.33899 mm")),
    Sketcher.Constraint("Distance", 2, Q("84.053131 mm")),
])
pad2 = body.newObject("PartDesign::Pad", "Pad001")
pad2.Profile = sketch13
pad2.Length = Q("0.5 in")
pad2.Reversed = True

# Sketch on XY plane
sketch14 = body.newObject("Sketcher::SketchObject", "Sketch013")
sketch14.AttachmentSupport = (doc.getObject("XY_Plane"), [""])
sketch14.MapMode = "FlatFace"
sketch14.AttachmentOffset = App.Placement(App.Vector(0, 0, 0.5 * 25.4), App.Rotation())
sketch14.addGeometry([
    Part.Circle(App.Vector(-81.6, 249.5, 0), App.Vector(0, 0, 1), 5.1),
    Part.Circle(App.Vector(-81.6, 249.5, 0), App.Vector(0, 0, 1), 2.5),
], False)
sketch14.addConstraint([
    Sketcher.Constraint("Coincident", 1, 3, 0, 3),
    Sketcher.Constraint("Diameter", 0, Q("0.4 in")),
    Sketcher.Constraint("Diameter", 1, Q("0.2 in")),
    Sketcher.Constraint("DistanceX", 0, 3, -1, 1, Q("81.616732 mm")),
    Sketcher.Constraint("DistanceY", -1, 1, 0, 3, Q("249.474356 mm")),
])
pad3 = body.newObject("PartDesign::Pad", "Pad002")
pad3.Profile = sketch14
pad3.Length = Q("0.5 in")
pad3.Reversed = True

# Sketch on XY plane
sketch15 = body.newObject("Sketcher::SketchObject", "Sketch014")
sketch15.AttachmentSupport = (doc.getObject("XY_Plane"), [""])
sketch15.MapMode = "FlatFace"
sketch15.AttachmentOffset = App.Placement(App.Vector(0, 0, 0.5 * 25.4), App.Rotation())
sketch15.addGeometry(Part.Circle(App.Vector(-81.6, 249.5, 0), App.Vector(0, 0, 1), 2.5), False)
sketch15.addConstraint([
    Sketcher.Constraint("Diameter", 0, Q("0.2 in")),
    Sketcher.Constraint("DistanceX", 0, 3, -1, 1, Q("81.616732 mm")),
    Sketcher.Constraint("DistanceY", -1, 1, 0, 3, Q("249.474356 mm")),
])
pocket12 = body.newObject("PartDesign::Pocket", "Pocket011")
pocket12.Profile = sketch15
pocket12.Length = Q("0.5 in")

# Sketch on XY plane
sketch16 = body.newObject("Sketcher::SketchObject", "Sketch015")
sketch16.AttachmentSupport = (doc.getObject("XY_Plane"), [""])
sketch16.MapMode = "FlatFace"
sketch16.AttachmentOffset = App.Placement(App.Vector(0, 0, 0.5 * 25.4), App.Rotation())
sketch16.addGeometry([
    Part.LineSegment(App.Vector(-77, 249, 0), App.Vector(2, 220, 0)),  # 0
    Part.LineSegment(App.Vector(2, 220, 0), App.Vector(91, 156, 0)),  # 1
    Part.LineSegment(App.Vector(91, 156, 0), App.Vector(98, 156, 0)),  # 2
    Part.LineSegment(App.Vector(98, 156, 0), App.Vector(11, 259, 0)),  # 3
    Part.LineSegment(App.Vector(11, 259, 0), App.Vector(-77, 257, 0)),  # 4
    Part.LineSegment(App.Vector(-77, 257, 0), App.Vector(-77, 249, 0)),  # 5
], False)
sketch16.addConstraint([
    Sketcher.Constraint("Coincident", 0, 2, 1, 1),
    Sketcher.Constraint("Coincident", 1, 2, 2, 1),
    Sketcher.Constraint("Coincident", 2, 2, 3, 1),
    Sketcher.Constraint("Coincident", 3, 2, 4, 1),
    Sketcher.Constraint("Coincident", 4, 2, 5, 1),
    Sketcher.Constraint("Coincident", 5, 2, 0, 1),
    Sketcher.Constraint("Horizontal", 2),
    Sketcher.Constraint("Vertical", 5),
    Sketcher.Constraint("DistanceY", 4, 2, 3, 2, Q("2.0863 mm")),
    Sketcher.Constraint("Distance", 3, Q("134.56043 mm")),
    Sketcher.Constraint("Distance", 4, Q("87.803681 mm")),
    Sketcher.Constraint("DistanceX", 2, 1, 2, 2, Q("6.559223 mm")),
    Sketcher.Constraint("DistanceY", 5, 2, 5, 1, Q("8.205756 mm")),
    Sketcher.Constraint("DistanceX", -1, 1, 1, 2, Q("91.166031 mm")),
    Sketcher.Constraint("DistanceY", -1, 1, 1, 2, Q("155.95229 mm")),
    Sketcher.Constraint("DistanceX", -1, 1, 3, 2, Q("11.182552 mm")),
    Sketcher.Constraint("DistanceX", 0, 2, 2, 2, Q("95.747608 mm")),
    Sketcher.Constraint("DistanceY", 0, 2, 4, 2, Q("36.949292 mm")),
])
pocket13 = body.newObject("PartDesign::Pocket", "Pocket012")
pocket13.Profile = sketch16
pocket13.Length = Q("0.5 in")

# Sketch on XY plane
sketch17 = body.newObject("Sketcher::SketchObject", "Sketch016")
sketch17.AttachmentSupport = (doc.getObject("XY_Plane"), [""])
sketch17.MapMode = "FlatFace"
sketch17.AttachmentOffset = App.Placement(App.Vector(0, 0, 0.5 * 25.4), App.Rotation())
sketch17.addGeometry([
    Part.LineSegment(App.Vector(-1, 218, 0), App.Vector(91, 156, 0)),  # 0
    Part.LineSegment(App.Vector(91, 156, 0), App.Vector(98, 156, 0)),  # 1
    Part.LineSegment(App.Vector(98, 156, 0), App.Vector(-2, 224, 0)),  # 2
    Part.LineSegment(App.Vector(-2, 224, 0), App.Vector(-77, 254, 0)),  # 3
    Part.LineSegment(App.Vector(-77, 254, 0), App.Vector(-77, 249, 0)),  # 4
    Part.LineSegment(App.Vector(-77, 249, 0), App.Vector(-1, 218, 0)),  # 5
], False)
sketch17.addConstraint([
    Sketcher.Constraint("Coincident", 0, 2, 1, 1),
    Sketcher.Constraint("Coincident", 1, 2, 2, 1),
    Sketcher.Constraint("Coincident", 2, 2, 3, 1),
    Sketcher.Constraint("Coincident", 3, 2, 4, 1),
    Sketcher.Constraint("Coincident", 4, 2, 5, 1),
    Sketcher.Constraint("Coincident", 5, 2, 0, 1),
    Sketcher.Constraint("Horizontal", 1),
    Sketcher.Constraint("Vertical", 4),
    Sketcher.Constraint("Parallel", 0, 2),
    Sketcher.Constraint("Parallel", 3, 5),
    Sketcher.Constraint("DistanceY", 0, 2, 5, 2, Q("2.44 in")),
    Sketcher.Constraint("Distance", 5, Q("81.720801 mm")),
    Sketcher.Constraint("DistanceX", -1, 1, 0, 2, Q("90.745299 mm")),
    Sketcher.Constraint("DistanceX", 2, 2, 5, 2, Q("1.554402 mm")),
    Sketcher.Constraint("DistanceX", 1, 1, 1, 2, Q("6.979955 mm")),
    Sketcher.Constraint("DistanceY", 4, 2, 4, 1, Q("5.140315 mm")),
    Sketcher.Constraint("DistanceY", -1, 1, 0, 2, Q("155.95229 mm")),
    Sketcher.Constraint("DistanceX", 2, 2, -1, 1, Q("2.444152 mm")),
])
pad4 = body.newObject("PartDesign::Pad", "Pad003")
pad4.Profile = sketch17
pad4.Length = Q("0.5 in")
pad4.Reversed = True

doc.recompute()
